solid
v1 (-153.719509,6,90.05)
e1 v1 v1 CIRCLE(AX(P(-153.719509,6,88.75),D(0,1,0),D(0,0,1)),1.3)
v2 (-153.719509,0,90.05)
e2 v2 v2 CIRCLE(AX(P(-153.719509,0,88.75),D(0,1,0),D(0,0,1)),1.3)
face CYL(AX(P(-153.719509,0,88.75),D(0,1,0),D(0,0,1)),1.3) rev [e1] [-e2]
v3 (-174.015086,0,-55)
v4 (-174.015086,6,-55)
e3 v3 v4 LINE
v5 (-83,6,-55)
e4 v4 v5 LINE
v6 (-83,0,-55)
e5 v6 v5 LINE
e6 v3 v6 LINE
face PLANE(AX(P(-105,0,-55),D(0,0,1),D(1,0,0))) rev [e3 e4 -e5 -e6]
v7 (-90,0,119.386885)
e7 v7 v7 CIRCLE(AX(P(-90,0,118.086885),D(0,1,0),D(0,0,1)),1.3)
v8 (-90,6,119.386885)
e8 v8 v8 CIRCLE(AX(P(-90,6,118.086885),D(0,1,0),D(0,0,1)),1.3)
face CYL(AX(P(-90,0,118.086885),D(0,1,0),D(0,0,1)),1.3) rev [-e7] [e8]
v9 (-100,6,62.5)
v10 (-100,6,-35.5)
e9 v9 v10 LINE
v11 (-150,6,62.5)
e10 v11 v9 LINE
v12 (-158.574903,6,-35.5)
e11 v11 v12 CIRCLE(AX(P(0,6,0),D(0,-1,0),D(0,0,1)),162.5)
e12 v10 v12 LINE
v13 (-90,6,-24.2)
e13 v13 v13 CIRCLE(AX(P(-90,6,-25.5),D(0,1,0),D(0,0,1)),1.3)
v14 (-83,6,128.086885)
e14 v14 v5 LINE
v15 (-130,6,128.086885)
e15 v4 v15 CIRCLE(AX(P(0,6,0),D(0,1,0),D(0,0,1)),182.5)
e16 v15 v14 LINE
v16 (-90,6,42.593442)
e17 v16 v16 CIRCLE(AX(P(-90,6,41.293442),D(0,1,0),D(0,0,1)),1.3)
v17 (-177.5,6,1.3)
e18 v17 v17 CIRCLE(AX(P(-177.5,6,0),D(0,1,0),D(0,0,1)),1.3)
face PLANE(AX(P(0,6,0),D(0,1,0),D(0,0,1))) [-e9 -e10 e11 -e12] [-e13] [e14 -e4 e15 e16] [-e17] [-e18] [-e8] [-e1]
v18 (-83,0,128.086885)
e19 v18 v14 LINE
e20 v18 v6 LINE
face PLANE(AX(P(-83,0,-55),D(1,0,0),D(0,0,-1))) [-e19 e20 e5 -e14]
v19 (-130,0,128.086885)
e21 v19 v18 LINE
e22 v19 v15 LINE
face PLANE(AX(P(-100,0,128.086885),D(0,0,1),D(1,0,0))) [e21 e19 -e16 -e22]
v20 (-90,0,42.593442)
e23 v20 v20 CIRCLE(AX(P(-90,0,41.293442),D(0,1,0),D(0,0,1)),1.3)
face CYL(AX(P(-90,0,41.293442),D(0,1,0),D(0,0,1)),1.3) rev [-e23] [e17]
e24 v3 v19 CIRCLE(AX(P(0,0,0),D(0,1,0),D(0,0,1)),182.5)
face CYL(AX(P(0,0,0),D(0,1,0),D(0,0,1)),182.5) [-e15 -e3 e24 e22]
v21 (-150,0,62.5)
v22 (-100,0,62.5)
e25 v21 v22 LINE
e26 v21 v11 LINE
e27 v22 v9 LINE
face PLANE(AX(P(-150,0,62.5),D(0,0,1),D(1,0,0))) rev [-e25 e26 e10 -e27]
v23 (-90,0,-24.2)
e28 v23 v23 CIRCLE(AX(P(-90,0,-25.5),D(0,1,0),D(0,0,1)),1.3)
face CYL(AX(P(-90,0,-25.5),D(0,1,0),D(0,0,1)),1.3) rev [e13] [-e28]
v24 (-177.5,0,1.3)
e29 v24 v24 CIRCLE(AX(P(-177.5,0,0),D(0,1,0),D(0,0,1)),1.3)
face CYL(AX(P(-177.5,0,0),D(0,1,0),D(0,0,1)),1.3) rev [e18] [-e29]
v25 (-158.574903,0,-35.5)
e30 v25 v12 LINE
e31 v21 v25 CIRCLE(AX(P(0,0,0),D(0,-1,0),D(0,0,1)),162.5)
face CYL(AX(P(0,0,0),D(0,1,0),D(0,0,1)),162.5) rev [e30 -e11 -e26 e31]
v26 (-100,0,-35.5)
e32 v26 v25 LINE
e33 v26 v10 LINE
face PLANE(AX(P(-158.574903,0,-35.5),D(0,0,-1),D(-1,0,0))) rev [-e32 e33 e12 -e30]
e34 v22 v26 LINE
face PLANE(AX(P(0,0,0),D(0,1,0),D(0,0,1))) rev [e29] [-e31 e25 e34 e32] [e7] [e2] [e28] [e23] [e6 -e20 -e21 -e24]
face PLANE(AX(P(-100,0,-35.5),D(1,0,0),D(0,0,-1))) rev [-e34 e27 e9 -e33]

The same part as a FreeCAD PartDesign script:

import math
import FreeCAD as App
import Part
import Sketcher
from FreeCAD import Vector
Q = App.Units.Quantity


def edges_at(feature, points):
    """Names of the edges that pass closest to the given points."""
    edges = feature.Shape.Edges
    near = lambda p: min(range(len(edges)), key=lambda i: edges[i].distToShape(Part.Vertex(*p))[0])
    return sorted({f"Edge{near(p) + 1}" for p in points})

doc = App.newDocument("Part")
body = doc.addObject("PartDesign::Body", "Body")

sketch1 = doc.addObject("Sketcher::SketchObject", "Sketch")
body.addObject(sketch1)
sketch1.AttachmentSupport = (doc.XZ_Plane, [""])
sketch1.MapMode = "FlatFace"
sketch1.addGeometry([
    Part.LineSegment(Vector(-100, 128, 0), Vector(-100, -36, 0)),
    Part.LineSegment(Vector(-100, -36, 0), Vector(100, -36, 0)),
    Part.LineSegment(Vector(100, -36, 0), Vector(100, 128, 0)),
    Part.ArcOfCircle(Part.Circle(Vector(0, 0, 0), Vector(0, 0, 1), 162), math.radians(128), math.radians(412)),
], False)
sketch1.addConstraint([
    Sketcher.Constraint("Coincident", 0, 2, 1, 1),
    Sketcher.Constraint("Coincident", 1, 2, 2, 1),
    Sketcher.Constraint("Coincident", 2, 2, 3, 2),
    Sketcher.Constraint("Coincident", 3, 1, 0, 1),
    Sketcher.Constraint("Vertical", 0),
    Sketcher.Constraint("Horizontal", 1),
    Sketcher.Constraint("Vertical", 2),
    Sketcher.Constraint("Coincident", 3, 3, -1, 1),
    Sketcher.Constraint("Horizontal", 2, 2, 3, 1),
    Sketcher.Constraint("Radius", 3, Q("162.5 mm")),
    Sketcher.Constraint("DistanceX", 1, 1, 1, 2, Q("200 mm")),
    Sketcher.Constraint("DistanceY", 0, 2, -1, 1, Q("35.5 mm")),
])
pad1 = doc.addObject("PartDesign::Pad", "Pad")
body.addObject(pad1)
pad1.Profile = sketch1
pad1.Length = 6
pad1.Reversed = True

sketch2 = doc.addObject("Sketcher::SketchObject", "Sketch001")
body.addObject(sketch2)
sketch2.AttachmentSupport = (doc.XZ_Plane, [""])
sketch2.MapMode = "FlatFace"
sketch2.AttachmentOffset = App.Placement(Vector(0, 0, -6), App.Rotation())
sketch2.addGeometry([
    Part.LineSegment(Vector(-100, 108, 0), Vector(-100, 128, 0)),
    Part.LineSegment(Vector(-100, 128, 0), Vector(100, 128, 0)),
    Part.LineSegment(Vector(100, 128, 0), Vector(100, 108, 0)),
    Part.LineSegment(Vector(100, 108, 0), Vector(-100, 108, 0)),
], False)
sketch2.addConstraint([
    Sketcher.Constraint("Coincident", 0, 2, 1, 1),
    Sketcher.Constraint("Coincident", 1, 2, 2, 1),
    Sketcher.Constraint("Coincident", 2, 2, 3, 1),
    Sketcher.Constraint("Coincident", 3, 2, 0, 1),
    Sketcher.Constraint("Vertical", 0),
    Sketcher.Constraint("Horizontal", 1),
    Sketcher.Constraint("Vertical", 2),
    Sketcher.Constraint("Horizontal", 3),
    Sketcher.Constraint("DistanceX", 1, 1, 1, 2, Q("200 mm")),
    Sketcher.Constraint("DistanceY", 0, 1, 0, 2, Q("20 mm")),
    Sketcher.Constraint("DistanceX", 0, 2, -1, 1, Q("100 mm")),
    Sketcher.Constraint("DistanceY", -1, 1, 0, 2, Q("128.086885 mm")),
])
pad2 = doc.addObject("PartDesign::Pad", "Pad001")
body.addObject(pad2)
pad2.Profile = sketch2
pad2.Length = 6

sketch3 = doc.addObject("Sketcher::SketchObject", "Sketch002")
body.addObject(sketch3)
sketch3.AttachmentSupport = (doc.XZ_Plane, [""])
sketch3.MapMode = "FlatFace"
sketch3.AttachmentOffset = App.Placement(Vector(0, 0, -6), App.Rotation())
sketch3.addGeometry([
    Part.LineSegment(Vector(-100, -36, 0), Vector(-100, 108, 0)),
    Part.LineSegment(Vector(-100, 108, 0), Vector(-14, 108, 0)),
    Part.LineSegment(Vector(-14, 108, 0), Vector(-14, -36, 0)),
    Part.LineSegment(Vector(-14, -36, 0), Vector(-100, -36, 0)),
    Part.LineSegment(Vector(14, -36, 0), Vector(14, 108, 0)),
    Part.LineSegment(Vector(14, 108, 0), Vector(100, 108, 0)),
    Part.LineSegment(Vector(100, 108, 0), Vector(100, -36, 0)),
    Part.LineSegment(Vector(100, -36, 0), Vector(14, -36, 0)),
], False)
sketch3.addConstraint([
    Sketcher.Constraint("Coincident", 0, 2, 1, 1),
    Sketcher.Constraint("Coincident", 1, 2, 2, 1),
    Sketcher.Constraint("Coincident", 2, 2, 3, 1),
    Sketcher.Constraint("Coincident", 3, 2, 0, 1),
    Sketcher.Constraint("Coincident", 4, 2, 5, 1),
    Sketcher.Constraint("Coincident", 5, 2, 6, 1),
    Sketcher.Constraint("Coincident", 6, 2, 7, 1),
    Sketcher.Constraint("Coincident", 7, 2, 4, 1),
    Sketcher.Constraint("Vertical", 0),
    Sketcher.Constraint("Horizontal", 1),
    Sketcher.Constraint("Vertical", 2),
    Sketcher.Constraint("Horizontal", 3),
    Sketcher.Constraint("Vertical", 4),
    Sketcher.Constraint("Horizontal", 5),
    Sketcher.Constraint("Vertical", 6),
    Sketcher.Constraint("Horizontal", 7),
    Sketcher.Constraint("Symmetric", 1, 2, 4, 2, -2),
    Sketcher.Constraint("Symmetric", 3, 2, 6, 2, -2),
    Sketcher.Constraint("DistanceX", 1, 1, 1, 2, Q("86.5 mm")),
    Sketcher.Constraint("DistanceX", 0, 2, -1, 1, Q("100 mm")),
    Sketcher.Constraint("DistanceY", 2, 2, -1, 1, Q("35.5 mm")),
    Sketcher.Constraint("DistanceY", 0, 1, 0, 2, Q("143.586885 mm")),
])
pad3 = doc.addObject("PartDesign::Pad", "Pad002")
body.addObject(pad3)
pad3.Profile = sketch3
pad3.Length = 6

sketch4 = doc.addObject("Sketcher::SketchObject", "Sketch003")
body.addObject(sketch4)
sketch4.AttachmentSupport = (doc.XZ_Plane, [""])
sketch4.MapMode = "FlatFace"
sketch4.AttachmentOffset = App.Placement(Vector(0, 0, -6), App.Rotation())
sketch4.addGeometry([
    Part.LineSegment(Vector(-150, 62, 0), Vector(-100, 62, 0)),
    Part.LineSegment(Vector(-100, 62, 0), Vector(-100, -36, 0)),
    Part.LineSegment(Vector(-100, -36, 0), Vector(-159, -36, 0)),
    Part.ArcOfCircle(Part.Circle(Vector(0, 0, 0), Vector(0, 0, 1), 162), math.radians(157), math.radians(193)),
    Part.LineSegment(Vector(100, -36, 0), Vector(100, 62, 0)),
    Part.LineSegment(Vector(100, 62, 0), Vector(150, 62, 0)),
    Part.ArcOfCircle(Part.Circle(Vector(0, 0, 0), Vector(0, 0, 1), 162), math.radians(-13), math.radians(23)),
    Part.LineSegment(Vector(159, -36, 0), Vector(100, -36, 0)),
], False)
sketch4.addConstraint([
    Sketcher.Constraint("Coincident", 0, 2, 1, 1),
    Sketcher.Constraint("Coincident", 1, 2, 2, 1),
    Sketcher.Constraint("Coincident", 2, 2, 3, 2),
    Sketcher.Constraint("Coincident", 3, 1, 0, 1),
    Sketcher.Constraint("Coincident", 4, 2, 5, 1),
    Sketcher.Constraint("Coincident", 5, 2, 6, 2),
    Sketcher.Constraint("Coincident", 6, 1, 7, 1),
    Sketcher.Constraint("Coincident", 7, 2, 4, 1),
    Sketcher.Constraint("Horizontal", 0),
    Sketcher.Constraint("Vertical", 1),
    Sketcher.Constraint("Horizontal", 2),
    Sketcher.Constraint("Vertical", 4),
    Sketcher.Constraint("Horizontal", 5),
    Sketcher.Constraint("Horizontal", 7),
    Sketcher.Constraint("Coincident", 3, 3, -1, 1),
    Sketcher.Constraint("Coincident", 6, 3, -1, 1),
    Sketcher.Constraint("Equal", 3, 6),
    Sketcher.Constraint("Symmetric", 0, 2, 4, 2, -2),
    Sketcher.Constraint("Horizontal", 2, 2, 6, 1),
    Sketcher.Constraint("Radius", 3, Q("162.5 mm")),
    Sketcher.Constraint("DistanceX", 0, 1, 0, 2, Q("50 mm")),
    Sketcher.Constraint("DistanceY", 1, 2, 1, 1, Q("98 mm")),
    Sketcher.Constraint("DistanceX", 0, 2, -1, 1, Q("100 mm")),
])
pocket1 = doc.addObject("PartDesign::Pocket", "Pocket")
body.addObject(pocket1)
pocket1.Profile = sketch4
pocket1.Type = "ThroughAll"
pocket1.Reversed = True

sketch5 = doc.addObject("Sketcher::SketchObject", "Sketch004")
body.addObject(sketch5)
sketch5.AttachmentSupport = (doc.XZ_Plane, [""])
sketch5.MapMode = "FlatFace"
sketch5.AttachmentOffset = App.Placement(Vector(0, 0, -6), App.Rotation())
sketch5.addGeometry([
    Part.LineSegment(Vector(-30, -160, 0), Vector(-30, -132, 0)),
    Part.ArcOfCircle(Part.Circle(Vector(0, -132, 0), Vector(0, 0, 1), 30), math.radians(0), math.radians(180)),
    Part.LineSegment(Vector(30, -132, 0), Vector(30, -160, 0)),
    Part.ArcOfCircle(Part.Circle(Vector(0, 0, 0), Vector(0, 0, 1), 163), math.radians(-101), math.radians(-79)),
], False)
sketch5.addConstraint([
    Sketcher.Constraint("Tangent", 0, 2, 1, 2),
    Sketcher.Constraint("Tangent", 1, 1, 2, 1),
    Sketcher.Constraint("Coincident", 2, 2, 3, 2),
    Sketcher.Constraint("Coincident", 3, 1, 0, 1),
    Sketcher.Constraint("Vertical", 0),
    Sketcher.Constraint("Vertical", 2),
    Sketcher.Constraint("Coincident", 3, 3, -1, 1),
    Sketcher.Constraint("PointOnObject", 1, 3, -2),
    Sketcher.Constraint("Radius", 1, Q("30 mm")),
    Sketcher.Constraint("Radius", 3, Q("162.5 mm")),
    Sketcher.Constraint("DistanceY", 1, 3, -1, 1, Q("132.5 mm")),
])
pocket2 = doc.addObject("PartDesign::Pocket", "Pocket001")
body.addObject(pocket2)
pocket2.Profile = sketch5
pocket2.Type = "ThroughAll"
pocket2.Reversed = True

sketch6 = doc.addObject("Sketcher::SketchObject", "Sketch005")
body.addObject(sketch6)
sketch6.AttachmentSupport = (doc.XZ_Plane, [""])
sketch6.MapMode = "FlatFace"
sketch6.AttachmentOffset = App.Placement(Vector(0, 0, -6), App.Rotation())
sketch6.addGeometry([
    Part.LineSegment(Vector(-105, -107, 0), Vector(-105, -55, 0)),
    Part.LineSegment(Vector(-105, -55, 0), Vector(105, -55, 0)),
    Part.LineSegment(Vector(105, -55, 0), Vector(105, -107, 0)),
    Part.LineSegment(Vector(105, -107, 0), Vector(-105, -107, 0)),
], False)
sketch6.addConstraint([
    Sketcher.Constraint("Coincident", 0, 2, 1, 1),
    Sketcher.Constraint("Coincident", 1, 2, 2, 1),
    Sketcher.Constraint("Coincident", 2, 2, 3, 1),
    Sketcher.Constraint("Coincident", 3, 2, 0, 1),
    Sketcher.Constraint("Vertical", 0),
    Sketcher.Constraint("Horizontal", 1),
    Sketcher.Constraint("Vertical", 2),
    Sketcher.Constraint("Horizontal", 3),
    Sketcher.Constraint("DistanceX", 1, 1, 1, 2, Q("210 mm")),
    Sketcher.Constraint("DistanceY", 0, 1, 0, 2, Q("52 mm")),
    Sketcher.Constraint("DistanceX", 0, 2, -1, 1, Q("105 mm")),
    Sketcher.Constraint("DistanceY", 0, 2, -1, 1, Q("55 mm")),
])
pocket3 = doc.addObject("PartDesign::Pocket", "Pocket002")
body.addObject(pocket3)
pocket3.Profile = sketch6
pocket3.Type = "ThroughAll"
pocket3.Reversed = True

sketch7 = doc.addObject("Sketcher::SketchObject", "Sketch006")
body.addObject(sketch7)
sketch7.AttachmentSupport = (doc.XZ_Plane, [""])
sketch7.MapMode = "FlatFace"
sketch7.AttachmentOffset = App.Placement(Vector(0, 0, -6), App.Rotation())
sketch7.addGeometry([
    Part.LineSegment(Vector(-130, 128, 0), Vector(-100, 128, 0)),
    Part.ArcOfCircle(Part.Circle(Vector(0, 0, 0), Vector(0, 0, 1), 162), math.radians(128), math.radians(412)),
    Part.LineSegment(Vector(100, 128, 0), Vector(130, 128, 0)),
    Part.ArcOfCircle(Part.Circle(Vector(0, 0, 0), Vector(0, 0, 1), 182), math.radians(135), math.radians(405)),
], False)
sketch7.addConstraint([
    Sketcher.Constraint("Coincident", 0, 2, 1, 1),
    Sketcher.Constraint("Coincident", 1, 2, 2, 1),
    Sketcher.Constraint("Coincident", 2, 2, 3, 2),
    Sketcher.Constraint("Coincident", 3, 1, 0, 1),
    Sketcher.Constraint("Horizontal", 0),
    Sketcher.Constraint("Horizontal", 2),
    Sketcher.Constraint("Coincident", 1, 3, -1, 1),
    Sketcher.Constraint("Coincident", 3, 3, -1, 1),
    Sketcher.Constraint("Horizontal", 0, 2, 1, 2),
    Sketcher.Constraint("Radius", 1, Q("162.5 mm")),
    Sketcher.Constraint("Radius", 3, Q("182.5 mm")),
    Sketcher.Constraint("DistanceX", 0, 1, 0, 2, Q("30 mm")),
])
pad4 = doc.addObject("PartDesign::Pad", "Pad003")
body.addObject(pad4)
pad4.Profile = sketch7
pad4.Type = "UpToLast"
doc.recompute()

fillet = doc.addObject("PartDesign::Fillet", "Fillet")
body.addObject(fillet)
fillet.Base = (pad4, edges_at(pad4, [
    (-105, 3, -107),
    (105, 3, -107),
    (105, 3, -55),
    (-105, 3, -55),
]))
fillet.Radius = 10

sketch8 = doc.addObject("Sketcher::SketchObject", "Sketch007")
body.addObject(sketch8)
sketch8.AttachmentSupport = (doc.XZ_Plane, [""])
sketch8.MapMode = "FlatFace"
sketch8.AttachmentOffset = App.Placement(Vector(0, 0, -6), App.Rotation())
sketch8.addGeometry([
    Part.Circle(Vector(0, -177.5, 0), Vector(0, 0, 1), 1.3),
    Part.Circle(Vector(88.8, -153.7, 0), Vector(0, 0, 1), 1.3),
    Part.Circle(Vector(153.7, -88.8, 0), Vector(0, 0, 1), 1.3),
    Part.Circle(Vector(177.5, 0, 0), Vector(0, 0, 1), 1.3),
    Part.Circle(Vector(153.7, 88.8, 0), Vector(0, 0, 1), 1.3),
    Part.Circle(Vector(88.8, 153.7, 0), Vector(0, 0, 1), 1.3),
    Part.Circle(Vector(0, 177.5, 0), Vector(0, 0, 1), 1.3),
    Part.Circle(Vector(-88.8, 153.7, 0), Vector(0, 0, 1), 1.3),
    Part.Circle(Vector(-153.7, 88.8, 0), Vector(0, 0, 1), 1.3),
    Part.Circle(Vector(-177.5, 0, 0), Vector(0, 0, 1), 1.3),
    Part.Circle(Vector(-153.7, -88.8, 0), Vector(0, 0, 1), 1.3),
    Part.Circle(Vector(-88.8, -153.7, 0), Vector(0, 0, 1), 1.3),
], False)
sketch8.addConstraint([
    Sketcher.Constraint("Equal", 0, 1),
    Sketcher.Constraint("Equal", 1, 2),
    Sketcher.Constraint("Equal", 2, 3),
    Sketcher.Constraint("Equal", 3, 4),
    Sketcher.Constraint("Equal", 4, 5),
    Sketcher.Constraint("Equal", 5, 6),
    Sketcher.Constraint("Equal", 6, 7),
    Sketcher.Constraint("Equal", 7, 8),
    Sketcher.Constraint("Equal", 8, 9),
    Sketcher.Constraint("Equal", 9, 10),
    Sketcher.Constraint("Equal", 10, 11),
    Sketcher.Constraint("Symmetric", 0, 3, 6, 3, -1, 1),
    Sketcher.Constraint("Symmetric", 1, 3, 7, 3, -1, 1),
    Sketcher.Constraint("Symmetric", 2, 3, 8, 3, -1, 1),
    Sketcher.Constraint("Symmetric", 3, 3, 9, 3, -1, 1),
    Sketcher.Constraint("Symmetric", 4, 3, 10, 3, -1, 1),
    Sketcher.Constraint("Symmetric", 5, 3, 11, 3, -1, 1),
    Sketcher.Constraint("Symmetric", 5, 3, 7, 3, -2),
    Sketcher.Constraint("Symmetric", 4, 3, 8, 3, -2),
    Sketcher.Constraint("PointOnObject", 0, 3, -2),
    Sketcher.Constraint("PointOnObject", 3, 3, -1),
    Sketcher.Constraint("Diameter", 0, Q("2.6 mm")),
    Sketcher.Constraint("DistanceY", 0, 3, -1, 1, Q("177.5 mm")),
    Sketcher.Constraint("DistanceX", -1, 1, 3, 3, Q("177.5 mm")),
    Sketcher.Constraint("DistanceY", 2, 3, 4, 3, Q("177.5 mm")),
    Sketcher.Constraint("DistanceX", 7, 3, 5, 3, Q("177.5 mm")),
    Sketcher.Constraint("DistanceY", 1, 3, -1, 1, Q("153.719509 mm")),
    Sketcher.Constraint("DistanceX", -1, 1, 2, 3, Q("153.719509 mm")),
])
pocket4 = doc.addObject("PartDesign::Pocket", "Pocket003")
body.addObject(pocket4)
pocket4.Profile = sketch8
pocket4.Type = "ThroughAll"
pocket4.Reversed = True

sketch9 = doc.addObject("Sketcher::SketchObject", "Sketch008")
body.addObject(sketch9)
sketch9.AttachmentSupport = (doc.XZ_Plane, [""])
sketch9.MapMode = "FlatFace"
sketch9.AttachmentOffset = App.Placement(Vector(0, 0, -6), App.Rotation())
sketch9.addGeometry([
    Part.Circle(Vector(0, 118.1, 0), Vector(0, 0, 1), 1.3),
    Part.Circle(Vector(-90, 118.1, 0), Vector(0, 0, 1), 1.3),
    Part.Circle(Vector(90, 118.1, 0), Vector(0, 0, 1), 1.3),
    Part.Circle(Vector(-90, -25.5, 0), Vector(0, 0, 1), 1.3),
    Part.Circle(Vector(-90, 41.3, 0), Vector(0, 0, 1), 1.3),
    Part.Circle(Vector(90, 41.3, 0), Vector(0, 0, 1), 1.3),
    Part.Circle(Vector(90, -25.5, 0), Vector(0, 0, 1), 1.3),
], False)
sketch9.addConstraint([
    Sketcher.Constraint("Equal", 0, 1),
    Sketcher.Constraint("Equal", 1, 2),
    Sketcher.Constraint("Equal", 2, 3),
    Sketcher.Constraint("Equal", 3, 4),
    Sketcher.Constraint("Equal", 4, 5),
    Sketcher.Constraint("Equal", 5, 6),
    Sketcher.Constraint("Symmetric", 1, 3, 2, 3, -2),
    Sketcher.Constraint("Symmetric", 4, 3, 5, 3, -2),
    Sketcher.Constraint("Symmetric", 3, 3, 6, 3, -2),
    Sketcher.Constraint("PointOnObject", 0, 3, -2),
    Sketcher.Constraint("Horizontal", 0, 3, 1, 3),
    Sketcher.Constraint("Vertical", 1, 3, 3, 3),
    Sketcher.Constraint("Vertical", 3, 3, 4, 3),
    Sketcher.Constraint("Diameter", 0, Q("2.6 mm")),
    Sketcher.Constraint("DistanceX", 1, 3, -1, 1, Q("90 mm")),
    Sketcher.Constraint("DistanceY", 3, 3, -1, 1, Q("25.5 mm")),
    Sketcher.Constraint("DistanceY", -1, 1, 0, 3, Q("118.086885 mm")),
    Sketcher.Constraint("DistanceY", -1, 1, 4, 3, Q("41.293442 mm")),
])
pocket5 = doc.addObject("PartDesign::Pocket", "Pocket004")
body.addObject(pocket5)
pocket5.Profile = sketch9
pocket5.Type = "ThroughAll"
pocket5.Reversed = True

sketch10 = doc.addObject("Sketcher::SketchObject", "Sketch009")
body.addObject(sketch10)
sketch10.AttachmentSupport = (doc.XZ_Plane, [""])
sketch10.MapMode = "FlatFace"
sketch10.AttachmentOffset = App.Placement(Vector(0, 0, -6), App.Rotation())
sketch10.addGeometry([
    Part.Circle(Vector(-17.9, 13.5, 0), Vector(0, 0, 1), 1.8),
    Part.Circle(Vector(17.9, 13.5, 0), Vector(0, 0, 1), 1.8),
], False)
sketch10.addConstraint([
    Sketcher.Constraint("Equal", 0, 1),
    Sketcher.Constraint("Symmetric", 0, 3, 1, 3, -2),
    Sketcher.Constraint("Diameter", 0, Q("3.5 mm")),
    Sketcher.Constraint("DistanceY", -1, 1, 0, 3, Q("13.5 mm")),
    Sketcher.Constraint("DistanceX", 0, 3, 1, 3, Q("35.75 mm")),
])
pocket6 = doc.addObject("PartDesign::Pocket", "Pocket005")
body.addObject(pocket6)
pocket6.Profile = sketch10
pocket6.Length = 10
pocket6.Reversed = True

sketch11 = doc.addObject("Sketcher::SketchObject", "Sketch010")
body.addObject(sketch11)
sketch11.AttachmentSupport = (doc.XZ_Plane, [""])
sketch11.MapMode = "FlatFace"
sketch11.AttachmentOffset = App.Placement(Vector(0, 0, -6), App.Rotation())
sketch11.addGeometry([
    Part.LineSegment(Vector(30, -132, 0), Vector(-30, -132, 0)),
    Part.ArcOfCircle(Part.Circle(Vector(-56, -133, 0), Vector(0, 0, 1), 26), math.radians(0), math.radians(90)),
    Part.LineSegment(Vector(-56, -107, 0), Vector(56, -107, 0)),
    Part.ArcOfCircle(Part.Circle(Vector(56, -133, 0), Vector(0, 0, 1), 26), math.radians(90), math.radians(180)),
], False)
sketch11.addConstraint([
    Sketcher.Constraint("Coincident", 0, 2, 1, 1),
    Sketcher.Constraint("Tangent", 1, 2, 2, 1),
    Sketcher.Constraint("Tangent", 2, 2, 3, 1),
    Sketcher.Constraint("Coincident", 3, 2, 0, 1),
    Sketcher.Constraint("Horizontal", 0),
    Sketcher.Constraint("Horizontal", 2),
    Sketcher.Constraint("Equal", 1, 3),
    Sketcher.Constraint("Horizontal", 3, 3, 0, 2),
    Sketcher.Constraint("Radius", 1, Q("25.5 mm")),
    Sketcher.Constraint("DistanceX", 0, 2, 0, 1, Q("60 mm")),
    Sketcher.Constraint("DistanceX", 0, 2, -1, 1, Q("30 mm")),
    Sketcher.Constraint("DistanceY", 1, 2, -1, 1, Q("107 mm")),
])
pocket7 = doc.addObject("PartDesign::Pocket", "Pocket006")
body.addObject(pocket7)
pocket7.Profile = sketch11
pocket7.Type = "ThroughAll"
pocket7.Reversed = True

sketch12 = doc.addObject("Sketcher::SketchObject", "Sketch011")
body.addObject(sketch12)
sketch12.AttachmentSupport = (doc.XZ_Plane, [""])
sketch12.MapMode = "FlatFace"
sketch12.AttachmentOffset = App.Placement(Vector(0, 0, -6), App.Rotation())
sketch12.addGeometry([
    Part.Circle(Vector(0, 0, 0), Vector(0, 0, 1), 209),
    Part.ArcOfCircle(Part.Circle(Vector(0, 0, 0), Vector(0, 0, 1), 182), math.radians(135), math.radians(198)),
    Part.LineSegment(Vector(-174, -55, 0), Vector(-83, -55, 0)),
    Part.LineSegment(Vector(-83, -55, 0), Vector(-83, 128, 0)),
    Part.LineSegment(Vector(-83, 128, 0), Vector(-130, 128, 0)),
], False)
sketch12.addConstraint([
    Sketcher.Constraint("Coincident", 1, 2, 2, 1),
    Sketcher.Constraint("Coincident", 2, 2, 3, 1),
    Sketcher.Constraint("Coincident", 3, 2, 4, 1),
    Sketcher.Constraint("Coincident", 4, 2, 1, 1),
    Sketcher.Constraint("Horizontal", 2),
    Sketcher.Constraint("Vertical", 3),
    Sketcher.Constraint("Horizontal", 4),
    Sketcher.Constraint("Coincident", 0, 3, -1, 1),
    Sketcher.Constraint("Coincident", 1, 3, -1, 1),
    Sketcher.Constraint("Radius", 1, Q("182.5 mm")),
    Sketcher.Constraint("DistanceX", 4, 2, 4, 1, Q("47 mm")),
    Sketcher.Constraint("DistanceY", 1, 2, -1, 1, Q("55 mm")),
    Sketcher.Constraint("DistanceX", 2, 2, -1, 1, Q("83 mm")),
    Sketcher.Constraint("Diameter", 0, Q("417.305397 mm")),
])
pocket8 = doc.addObject("PartDesign::Pocket", "Pocket007")
body.addObject(pocket8)
pocket8.Profile = sketch12
pocket8.Type = "ThroughAll"
pocket8.Reversed = True

doc.recompute()
